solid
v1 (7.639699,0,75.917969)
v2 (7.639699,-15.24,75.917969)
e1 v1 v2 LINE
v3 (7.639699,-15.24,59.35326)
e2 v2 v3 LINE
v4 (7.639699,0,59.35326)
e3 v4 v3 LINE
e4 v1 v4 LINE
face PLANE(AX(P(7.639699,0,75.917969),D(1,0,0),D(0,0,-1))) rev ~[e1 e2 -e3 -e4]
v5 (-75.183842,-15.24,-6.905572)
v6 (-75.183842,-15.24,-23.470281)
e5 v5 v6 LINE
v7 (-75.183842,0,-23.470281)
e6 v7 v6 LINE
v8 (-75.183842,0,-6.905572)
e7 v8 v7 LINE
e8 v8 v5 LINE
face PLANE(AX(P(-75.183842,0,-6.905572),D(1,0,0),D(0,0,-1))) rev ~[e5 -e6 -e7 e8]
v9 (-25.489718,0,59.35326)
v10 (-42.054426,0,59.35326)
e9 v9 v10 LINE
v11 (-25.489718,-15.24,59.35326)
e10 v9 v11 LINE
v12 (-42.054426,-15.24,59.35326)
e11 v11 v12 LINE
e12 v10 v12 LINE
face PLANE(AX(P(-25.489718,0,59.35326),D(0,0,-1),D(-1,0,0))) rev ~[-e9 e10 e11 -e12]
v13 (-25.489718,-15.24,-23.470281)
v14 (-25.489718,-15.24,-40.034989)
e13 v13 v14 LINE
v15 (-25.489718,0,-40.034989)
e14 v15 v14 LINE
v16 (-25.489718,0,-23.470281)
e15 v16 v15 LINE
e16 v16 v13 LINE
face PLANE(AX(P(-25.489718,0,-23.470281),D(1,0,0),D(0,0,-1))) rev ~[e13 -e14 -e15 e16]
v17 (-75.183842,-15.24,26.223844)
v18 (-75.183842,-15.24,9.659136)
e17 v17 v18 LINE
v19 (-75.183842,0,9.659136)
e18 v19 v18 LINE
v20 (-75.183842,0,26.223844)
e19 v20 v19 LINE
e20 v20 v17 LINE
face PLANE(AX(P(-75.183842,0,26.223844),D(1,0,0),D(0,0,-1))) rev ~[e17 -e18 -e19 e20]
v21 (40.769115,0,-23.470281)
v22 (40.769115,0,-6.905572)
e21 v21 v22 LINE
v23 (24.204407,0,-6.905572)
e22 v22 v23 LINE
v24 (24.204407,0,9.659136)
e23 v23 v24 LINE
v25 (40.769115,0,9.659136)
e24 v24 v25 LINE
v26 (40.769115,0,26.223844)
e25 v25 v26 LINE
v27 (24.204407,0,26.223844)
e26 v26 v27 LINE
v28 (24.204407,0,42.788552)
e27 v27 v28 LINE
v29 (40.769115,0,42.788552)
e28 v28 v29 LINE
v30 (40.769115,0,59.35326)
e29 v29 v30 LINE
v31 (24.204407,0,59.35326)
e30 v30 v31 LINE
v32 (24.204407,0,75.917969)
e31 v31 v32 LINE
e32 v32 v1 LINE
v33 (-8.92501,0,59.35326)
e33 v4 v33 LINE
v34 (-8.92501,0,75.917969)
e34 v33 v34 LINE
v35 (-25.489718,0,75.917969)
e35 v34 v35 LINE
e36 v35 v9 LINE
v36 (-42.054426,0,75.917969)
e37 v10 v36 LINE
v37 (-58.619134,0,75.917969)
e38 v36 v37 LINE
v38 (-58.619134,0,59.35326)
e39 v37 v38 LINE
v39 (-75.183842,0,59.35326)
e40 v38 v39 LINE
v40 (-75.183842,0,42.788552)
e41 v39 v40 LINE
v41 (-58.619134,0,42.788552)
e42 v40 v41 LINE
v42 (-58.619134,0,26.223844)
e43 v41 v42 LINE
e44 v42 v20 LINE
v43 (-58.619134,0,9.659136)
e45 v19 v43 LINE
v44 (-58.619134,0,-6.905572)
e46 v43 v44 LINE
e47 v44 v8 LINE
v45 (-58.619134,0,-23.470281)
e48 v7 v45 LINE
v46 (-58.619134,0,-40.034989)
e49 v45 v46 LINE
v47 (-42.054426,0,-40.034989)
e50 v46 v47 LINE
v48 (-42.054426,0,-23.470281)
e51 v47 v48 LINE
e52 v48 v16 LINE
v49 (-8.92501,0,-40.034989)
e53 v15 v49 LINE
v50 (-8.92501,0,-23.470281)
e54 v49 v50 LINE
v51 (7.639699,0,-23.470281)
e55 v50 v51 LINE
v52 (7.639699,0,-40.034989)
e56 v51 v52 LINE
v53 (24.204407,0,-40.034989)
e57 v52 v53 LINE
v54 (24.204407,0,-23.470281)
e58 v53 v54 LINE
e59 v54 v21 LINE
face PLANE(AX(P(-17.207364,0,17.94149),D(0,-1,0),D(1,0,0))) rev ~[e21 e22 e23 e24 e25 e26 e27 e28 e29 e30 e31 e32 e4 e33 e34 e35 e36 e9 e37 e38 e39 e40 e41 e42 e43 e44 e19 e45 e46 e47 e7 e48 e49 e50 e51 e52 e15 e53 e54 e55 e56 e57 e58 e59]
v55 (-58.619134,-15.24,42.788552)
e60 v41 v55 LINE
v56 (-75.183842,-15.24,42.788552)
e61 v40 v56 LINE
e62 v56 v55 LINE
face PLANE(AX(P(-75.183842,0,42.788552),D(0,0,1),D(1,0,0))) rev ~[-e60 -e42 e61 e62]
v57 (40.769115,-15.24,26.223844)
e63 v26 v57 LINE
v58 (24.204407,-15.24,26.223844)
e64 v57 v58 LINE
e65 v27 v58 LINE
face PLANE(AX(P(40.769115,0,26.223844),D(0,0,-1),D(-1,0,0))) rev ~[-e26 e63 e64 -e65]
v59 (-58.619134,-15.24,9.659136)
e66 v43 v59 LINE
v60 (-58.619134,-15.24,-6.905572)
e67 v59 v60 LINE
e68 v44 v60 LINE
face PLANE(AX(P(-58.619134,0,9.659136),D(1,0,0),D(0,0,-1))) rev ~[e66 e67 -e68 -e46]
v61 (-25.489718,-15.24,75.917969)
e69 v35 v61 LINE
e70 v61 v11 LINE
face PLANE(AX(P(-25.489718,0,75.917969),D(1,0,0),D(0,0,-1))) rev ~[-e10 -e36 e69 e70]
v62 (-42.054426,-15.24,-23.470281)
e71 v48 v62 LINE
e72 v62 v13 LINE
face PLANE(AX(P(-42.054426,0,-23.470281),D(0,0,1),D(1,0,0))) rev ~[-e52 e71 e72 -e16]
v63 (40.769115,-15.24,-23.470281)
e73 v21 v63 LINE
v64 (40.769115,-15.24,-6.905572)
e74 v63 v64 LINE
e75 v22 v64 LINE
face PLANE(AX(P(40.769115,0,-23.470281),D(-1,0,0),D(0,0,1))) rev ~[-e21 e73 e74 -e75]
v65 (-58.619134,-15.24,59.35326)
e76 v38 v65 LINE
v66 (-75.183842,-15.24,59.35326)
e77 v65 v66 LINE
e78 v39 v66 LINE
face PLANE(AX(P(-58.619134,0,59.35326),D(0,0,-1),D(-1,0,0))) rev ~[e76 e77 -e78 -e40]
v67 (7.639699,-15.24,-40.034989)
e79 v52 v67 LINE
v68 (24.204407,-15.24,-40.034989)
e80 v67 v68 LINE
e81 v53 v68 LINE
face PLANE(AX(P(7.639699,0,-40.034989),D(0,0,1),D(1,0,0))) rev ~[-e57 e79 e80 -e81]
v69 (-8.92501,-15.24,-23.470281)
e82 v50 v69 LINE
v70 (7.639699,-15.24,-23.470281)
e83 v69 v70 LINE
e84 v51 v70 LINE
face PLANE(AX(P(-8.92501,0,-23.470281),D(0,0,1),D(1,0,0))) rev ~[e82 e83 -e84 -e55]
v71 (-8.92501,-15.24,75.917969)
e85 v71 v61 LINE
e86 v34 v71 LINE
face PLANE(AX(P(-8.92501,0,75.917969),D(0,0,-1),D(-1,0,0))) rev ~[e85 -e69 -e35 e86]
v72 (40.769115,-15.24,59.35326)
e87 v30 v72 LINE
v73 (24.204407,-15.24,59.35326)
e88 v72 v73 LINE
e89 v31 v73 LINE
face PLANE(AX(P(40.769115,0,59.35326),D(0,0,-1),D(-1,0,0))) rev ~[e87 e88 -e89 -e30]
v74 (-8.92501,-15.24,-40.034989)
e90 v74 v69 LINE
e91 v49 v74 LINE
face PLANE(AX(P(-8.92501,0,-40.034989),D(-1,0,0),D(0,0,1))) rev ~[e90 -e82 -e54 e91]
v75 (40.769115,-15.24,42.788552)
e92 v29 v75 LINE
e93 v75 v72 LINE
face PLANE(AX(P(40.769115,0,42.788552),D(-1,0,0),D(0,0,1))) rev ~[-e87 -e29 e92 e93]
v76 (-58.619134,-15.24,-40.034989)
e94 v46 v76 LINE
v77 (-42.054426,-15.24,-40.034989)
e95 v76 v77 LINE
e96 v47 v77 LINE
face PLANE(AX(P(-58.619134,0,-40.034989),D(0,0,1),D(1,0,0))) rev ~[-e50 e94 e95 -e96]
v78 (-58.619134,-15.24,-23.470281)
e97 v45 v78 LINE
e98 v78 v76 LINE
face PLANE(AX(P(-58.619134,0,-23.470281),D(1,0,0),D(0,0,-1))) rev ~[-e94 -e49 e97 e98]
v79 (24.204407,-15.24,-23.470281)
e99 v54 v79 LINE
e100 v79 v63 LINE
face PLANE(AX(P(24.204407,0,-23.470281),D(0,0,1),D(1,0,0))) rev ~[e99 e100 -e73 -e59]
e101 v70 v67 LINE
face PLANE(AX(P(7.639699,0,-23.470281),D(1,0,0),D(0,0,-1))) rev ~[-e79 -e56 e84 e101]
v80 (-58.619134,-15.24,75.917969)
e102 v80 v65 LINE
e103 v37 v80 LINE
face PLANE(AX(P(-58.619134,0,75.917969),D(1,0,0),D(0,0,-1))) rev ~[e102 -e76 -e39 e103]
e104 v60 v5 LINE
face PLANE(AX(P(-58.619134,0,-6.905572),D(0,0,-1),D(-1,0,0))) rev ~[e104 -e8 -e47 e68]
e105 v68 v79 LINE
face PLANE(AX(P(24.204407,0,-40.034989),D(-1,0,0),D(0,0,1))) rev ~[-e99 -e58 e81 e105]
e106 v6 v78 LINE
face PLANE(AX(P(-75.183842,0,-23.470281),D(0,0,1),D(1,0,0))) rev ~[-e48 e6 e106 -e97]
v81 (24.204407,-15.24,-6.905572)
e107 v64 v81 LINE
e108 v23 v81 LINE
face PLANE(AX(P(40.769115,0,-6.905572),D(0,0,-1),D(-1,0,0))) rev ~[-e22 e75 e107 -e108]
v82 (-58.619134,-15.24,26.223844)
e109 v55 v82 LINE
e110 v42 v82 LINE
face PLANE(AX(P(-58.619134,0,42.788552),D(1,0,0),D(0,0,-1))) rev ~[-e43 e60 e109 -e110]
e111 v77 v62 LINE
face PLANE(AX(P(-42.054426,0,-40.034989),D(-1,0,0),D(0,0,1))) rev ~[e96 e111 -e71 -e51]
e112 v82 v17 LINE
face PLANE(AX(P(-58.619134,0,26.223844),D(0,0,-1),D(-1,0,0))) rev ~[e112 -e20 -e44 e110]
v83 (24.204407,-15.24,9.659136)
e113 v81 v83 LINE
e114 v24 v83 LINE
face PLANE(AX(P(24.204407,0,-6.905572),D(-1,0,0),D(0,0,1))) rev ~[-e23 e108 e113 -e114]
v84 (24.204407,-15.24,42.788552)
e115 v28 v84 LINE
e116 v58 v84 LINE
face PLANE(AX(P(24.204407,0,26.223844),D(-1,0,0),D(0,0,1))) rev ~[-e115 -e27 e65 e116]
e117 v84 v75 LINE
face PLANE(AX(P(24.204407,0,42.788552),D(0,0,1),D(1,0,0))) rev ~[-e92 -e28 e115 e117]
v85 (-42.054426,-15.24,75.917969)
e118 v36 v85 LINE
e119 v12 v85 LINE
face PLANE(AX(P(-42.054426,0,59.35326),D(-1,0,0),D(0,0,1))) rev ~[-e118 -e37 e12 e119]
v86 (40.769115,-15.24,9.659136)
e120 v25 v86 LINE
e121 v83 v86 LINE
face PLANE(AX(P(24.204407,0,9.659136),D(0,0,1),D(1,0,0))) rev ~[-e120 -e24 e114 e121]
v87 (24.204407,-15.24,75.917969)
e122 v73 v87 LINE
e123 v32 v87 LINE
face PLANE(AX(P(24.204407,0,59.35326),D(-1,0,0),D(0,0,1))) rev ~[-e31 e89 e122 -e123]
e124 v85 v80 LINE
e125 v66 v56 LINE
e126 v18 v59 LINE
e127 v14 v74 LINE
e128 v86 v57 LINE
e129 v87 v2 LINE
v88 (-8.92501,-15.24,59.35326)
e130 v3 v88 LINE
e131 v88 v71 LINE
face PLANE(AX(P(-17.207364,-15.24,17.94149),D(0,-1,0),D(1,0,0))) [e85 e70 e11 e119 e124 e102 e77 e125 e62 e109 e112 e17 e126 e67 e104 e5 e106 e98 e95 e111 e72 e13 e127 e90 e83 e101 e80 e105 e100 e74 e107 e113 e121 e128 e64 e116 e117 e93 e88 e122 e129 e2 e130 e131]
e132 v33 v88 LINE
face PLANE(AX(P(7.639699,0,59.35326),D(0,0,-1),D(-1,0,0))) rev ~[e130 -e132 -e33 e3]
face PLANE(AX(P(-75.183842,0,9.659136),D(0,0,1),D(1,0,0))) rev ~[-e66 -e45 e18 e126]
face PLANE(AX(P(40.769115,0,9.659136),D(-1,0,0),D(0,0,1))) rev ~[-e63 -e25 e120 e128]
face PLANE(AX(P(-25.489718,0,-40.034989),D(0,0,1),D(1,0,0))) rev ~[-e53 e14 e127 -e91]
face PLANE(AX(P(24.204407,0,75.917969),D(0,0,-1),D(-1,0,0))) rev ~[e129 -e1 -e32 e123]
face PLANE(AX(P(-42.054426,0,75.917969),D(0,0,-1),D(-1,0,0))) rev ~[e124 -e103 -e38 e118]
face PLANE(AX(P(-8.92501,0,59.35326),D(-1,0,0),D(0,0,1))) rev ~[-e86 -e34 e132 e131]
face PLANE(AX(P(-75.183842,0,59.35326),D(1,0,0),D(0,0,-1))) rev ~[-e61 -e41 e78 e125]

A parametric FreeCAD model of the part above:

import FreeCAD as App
import Part
import Sketcher
from FreeCAD import Vector
Q = App.Units.Quantity


def add_polygon(sketch, points):
    """Adds a closed chain of lines whose ends are joined by coincident constraints."""
    first, n = sketch.GeometryCount, len(points)
    for a, b in zip(points, points[1:] + points[:1]):
        sketch.addGeometry(Part.LineSegment(App.Vector(*a, 0), App.Vector(*b, 0)), False)
    for i in range(n):
        sketch.addConstraint(Sketcher.Constraint("Coincident", first + i, 2, first + (i + 1) % n, 1))

doc = App.newDocument("Part")
params = doc.addObject("Spreadsheet::Sheet", "Params")
for row, (alias, value) in enumerate([
    ("pad1_length", "0.6 in"),
], start=1):
    params.set(f"A{row}", alias)
    params.set(f"B{row}", "=" + value)
    params.setAlias(f"B{row}", alias)

body = doc.addObject("PartDesign::Body", "Body")

sketch1 = doc.addObject("Sketcher::SketchObject", "Sketch")
body.addObject(sketch1)
sketch1.AttachmentSupport = (doc.XZ_Plane, [""])
sketch1.MapMode = "FlatFace"
add_polygon(sketch1, [(-42, 76), (-59, 76), (-59, 59), (-75, 59), (-75, 43), (-59, 43), (-59, 26), (-75, 26), (-75, 10), (-59, 10), (-59, -7), (-75, -7), (-75, -23), (-59, -23), (-59, -40), (-42, -40), (-42, -23), (-25, -23), (-25, -40), (-9, -40), (-9, -23), (8, -23), (8, -40), (24, -40), (24, -23), (41, -23), (41, -7), (24, -7), (24, 10), (41, 10), (41, 26), (24, 26), (24, 43), (41, 43), (41, 59), (24, 59), (24, 76), (8, 76), (8, 59), (-9, 59), (-9, 76), (-25, 76), (-25, 59), (-42, 59)])
sketch1.addConstraint(Sketcher.Constraint("Horizontal", 0))
sketch1.addConstraint(Sketcher.Constraint("Vertical", 1))
sketch1.addConstraint(Sketcher.Constraint("Horizontal", 2))
sketch1.addConstraint(Sketcher.Constraint("Vertical", 3))
sketch1.addConstraint(Sketcher.Constraint("Horizontal", 4))
sketch1.addConstraint(Sketcher.Constraint("Vertical", 5))
sketch1.addConstraint(Sketcher.Constraint("Horizontal", 6))
sketch1.addConstraint(Sketcher.Constraint("Vertical", 7))
sketch1.addConstraint(Sketcher.Constraint("Horizontal", 8))
sketch1.addConstraint(Sketcher.Constraint("Vertical", 9))
sketch1.addConstraint(Sketcher.Constraint("Horizontal", 10))
sketch1.addConstraint(Sketcher.Constraint("Vertical", 11))
sketch1.addConstraint(Sketcher.Constraint("Horizontal", 12))
sketch1.addConstraint(Sketcher.Constraint("Vertical", 13))
sketch1.addConstraint(Sketcher.Constraint("Horizontal", 14))
sketch1.addConstraint(Sketcher.Constraint("Vertical", 15))
sketch1.addConstraint(Sketcher.Constraint("Horizontal", 16))
sketch1.addConstraint(Sketcher.Constraint("Vertical", 17))
sketch1.addConstraint(Sketcher.Constraint("Horizontal", 18))
sketch1.addConstraint(Sketcher.Constraint("Vertical", 19))
sketch1.addConstraint(Sketcher.Constraint("Horizontal", 20))
sketch1.addConstraint(Sketcher.Constraint("Vertical", 21))
sketch1.addConstraint(Sketcher.Constraint("Horizontal", 22))
sketch1.addConstraint(Sketcher.Constraint("Vertical", 23))
sketch1.addConstraint(Sketcher.Constraint("Horizontal", 24))
sketch1.addConstraint(Sketcher.Constraint("Vertical", 25))
sketch1.addConstraint(Sketcher.Constraint("Horizontal", 26))
sketch1.addConstraint(Sketcher.Constraint("Vertical", 27))
sketch1.addConstraint(Sketcher.Constraint("Horizontal", 28))
sketch1.addConstraint(Sketcher.Constraint("Vertical", 29))
sketch1.addConstraint(Sketcher.Constraint("Horizontal", 30))
sketch1.addConstraint(Sketcher.Constraint("Vertical", 31))
sketch1.addConstraint(Sketcher.Constraint("Horizontal", 32))
sketch1.addConstraint(Sketcher.Constraint("Vertical", 33))
sketch1.addConstraint(Sketcher.Constraint("Horizontal", 34))
sketch1.addConstraint(Sketcher.Constraint("Vertical", 35))
sketch1.addConstraint(Sketcher.Constraint("Horizontal", 36))
sketch1.addConstraint(Sketcher.Constraint("Vertical", 37))
sketch1.addConstraint(Sketcher.Constraint("Horizontal", 38))
sketch1.addConstraint(Sketcher.Constraint("Vertical", 39))
sketch1.addConstraint(Sketcher.Constraint("Horizontal", 40))
sketch1.addConstraint(Sketcher.Constraint("Vertical", 41))
sketch1.addConstraint(Sketcher.Constraint("Horizontal", 42))
sketch1.addConstraint(Sketcher.Constraint("Vertical", 43))
sketch1.addConstraint(Sketcher.Constraint("Horizontal", 12, 2, 15, 2))
sketch1.addConstraint(Sketcher.Constraint("Horizontal", 14, 2, 17, 2))
sketch1.addConstraint(Sketcher.Constraint("Horizontal", 16, 2, 19, 2))
sketch1.addConstraint(Sketcher.Constraint("Horizontal", 18, 2, 21, 2))
sketch1.addConstraint(Sketcher.Constraint("Horizontal", 20, 2, 23, 2))
sketch1.addConstraint(Sketcher.Constraint("Horizontal", 10, 2, 25, 2))
sketch1.addConstraint(Sketcher.Constraint("Horizontal", 8, 2, 27, 2))
sketch1.addConstraint(Sketcher.Constraint("Horizontal", 6, 2, 29, 2))
sketch1.addConstraint(Sketcher.Constraint("Horizontal", 4, 2, 31, 2))
sketch1.addConstraint(Sketcher.Constraint("Horizontal", 2, 2, 33, 2))
sketch1.addConstraint(Sketcher.Constraint("Horizontal", 0, 2, 35, 2))
sketch1.addConstraint(Sketcher.Constraint("Horizontal", 34, 2, 37, 2))
sketch1.addConstraint(Sketcher.Constraint("Horizontal", 36, 2, 39, 2))
sketch1.addConstraint(Sketcher.Constraint("Horizontal", 38, 2, 41, 2))
sketch1.addConstraint(Sketcher.Constraint("Vertical", 1, 2, 4, 2))
sketch1.addConstraint(Sketcher.Constraint("Vertical", 3, 2, 6, 2))
sketch1.addConstraint(Sketcher.Constraint("Vertical", 5, 2, 8, 2))
sketch1.addConstraint(Sketcher.Constraint("Vertical", 7, 2, 10, 2))
sketch1.addConstraint(Sketcher.Constraint("Vertical", 9, 2, 12, 2))
sketch1.addConstraint(Sketcher.Constraint("Vertical", 23, 2, 26, 2))
sketch1.addConstraint(Sketcher.Constraint("Vertical", 25, 2, 28, 2))
sketch1.addConstraint(Sketcher.Constraint("Vertical", 27, 2, 30, 2))
sketch1.addConstraint(Sketcher.Constraint("Vertical", 29, 2, 32, 2))
sketch1.addConstraint(Sketcher.Constraint("Vertical", 31, 2, 34, 2))
sketch1.addConstraint(Sketcher.Constraint("Vertical", 21, 2, 36, 2))
sketch1.addConstraint(Sketcher.Constraint("Vertical", 19, 2, 38, 2))
sketch1.addConstraint(Sketcher.Constraint("Vertical", 17, 2, 40, 2))
sketch1.addConstraint(Sketcher.Constraint("Vertical", 15, 2, 42, 2))
sketch1.addConstraint(Sketcher.Constraint("Equal", 0, 2))
sketch1.addConstraint(Sketcher.Constraint("Equal", 14, 16))
sketch1.addConstraint(Sketcher.Constraint("Equal", 16, 18))
sketch1.addConstraint(Sketcher.Constraint("Equal", 18, 20))
sketch1.addConstraint(Sketcher.Constraint("Equal", 20, 22))
sketch1.addConstraint(Sketcher.Constraint("Equal", 22, 24))
sketch1.addConstraint(Sketcher.Constraint("Equal", 42, 1))
sketch1.addConstraint(Sketcher.Constraint("Equal", 1, 3))
sketch1.addConstraint(Sketcher.Constraint("Equal", 3, 5))
sketch1.addConstraint(Sketcher.Constraint("Equal", 5, 7))
sketch1.addConstraint(Sketcher.Constraint("Equal", 7, 9))
sketch1.addConstraint(Sketcher.Constraint("Equal", 9, 11))
sketch1.addConstraint(Sketcher.Constraint("Equal", 11, 13))
sketch1.addConstraint(Sketcher.Constraint("DistanceX", 0, 2, 0, 1, Q("16.564708 mm")))
sketch1.addConstraint(Sketcher.Constraint("DistanceX", -1, 1, 20, 2, Q("7.639699 mm")))
sketch1.addConstraint(Sketcher.Constraint("DistanceY", -1, 1, 0, 2, Q("75.917969 mm")))
pad1 = doc.addObject("PartDesign::Pad", "Pad")
body.addObject(pad1)
pad1.Profile = sketch1
pad1.setExpression("Length", "Params.pad1_length")

doc.recompute()
